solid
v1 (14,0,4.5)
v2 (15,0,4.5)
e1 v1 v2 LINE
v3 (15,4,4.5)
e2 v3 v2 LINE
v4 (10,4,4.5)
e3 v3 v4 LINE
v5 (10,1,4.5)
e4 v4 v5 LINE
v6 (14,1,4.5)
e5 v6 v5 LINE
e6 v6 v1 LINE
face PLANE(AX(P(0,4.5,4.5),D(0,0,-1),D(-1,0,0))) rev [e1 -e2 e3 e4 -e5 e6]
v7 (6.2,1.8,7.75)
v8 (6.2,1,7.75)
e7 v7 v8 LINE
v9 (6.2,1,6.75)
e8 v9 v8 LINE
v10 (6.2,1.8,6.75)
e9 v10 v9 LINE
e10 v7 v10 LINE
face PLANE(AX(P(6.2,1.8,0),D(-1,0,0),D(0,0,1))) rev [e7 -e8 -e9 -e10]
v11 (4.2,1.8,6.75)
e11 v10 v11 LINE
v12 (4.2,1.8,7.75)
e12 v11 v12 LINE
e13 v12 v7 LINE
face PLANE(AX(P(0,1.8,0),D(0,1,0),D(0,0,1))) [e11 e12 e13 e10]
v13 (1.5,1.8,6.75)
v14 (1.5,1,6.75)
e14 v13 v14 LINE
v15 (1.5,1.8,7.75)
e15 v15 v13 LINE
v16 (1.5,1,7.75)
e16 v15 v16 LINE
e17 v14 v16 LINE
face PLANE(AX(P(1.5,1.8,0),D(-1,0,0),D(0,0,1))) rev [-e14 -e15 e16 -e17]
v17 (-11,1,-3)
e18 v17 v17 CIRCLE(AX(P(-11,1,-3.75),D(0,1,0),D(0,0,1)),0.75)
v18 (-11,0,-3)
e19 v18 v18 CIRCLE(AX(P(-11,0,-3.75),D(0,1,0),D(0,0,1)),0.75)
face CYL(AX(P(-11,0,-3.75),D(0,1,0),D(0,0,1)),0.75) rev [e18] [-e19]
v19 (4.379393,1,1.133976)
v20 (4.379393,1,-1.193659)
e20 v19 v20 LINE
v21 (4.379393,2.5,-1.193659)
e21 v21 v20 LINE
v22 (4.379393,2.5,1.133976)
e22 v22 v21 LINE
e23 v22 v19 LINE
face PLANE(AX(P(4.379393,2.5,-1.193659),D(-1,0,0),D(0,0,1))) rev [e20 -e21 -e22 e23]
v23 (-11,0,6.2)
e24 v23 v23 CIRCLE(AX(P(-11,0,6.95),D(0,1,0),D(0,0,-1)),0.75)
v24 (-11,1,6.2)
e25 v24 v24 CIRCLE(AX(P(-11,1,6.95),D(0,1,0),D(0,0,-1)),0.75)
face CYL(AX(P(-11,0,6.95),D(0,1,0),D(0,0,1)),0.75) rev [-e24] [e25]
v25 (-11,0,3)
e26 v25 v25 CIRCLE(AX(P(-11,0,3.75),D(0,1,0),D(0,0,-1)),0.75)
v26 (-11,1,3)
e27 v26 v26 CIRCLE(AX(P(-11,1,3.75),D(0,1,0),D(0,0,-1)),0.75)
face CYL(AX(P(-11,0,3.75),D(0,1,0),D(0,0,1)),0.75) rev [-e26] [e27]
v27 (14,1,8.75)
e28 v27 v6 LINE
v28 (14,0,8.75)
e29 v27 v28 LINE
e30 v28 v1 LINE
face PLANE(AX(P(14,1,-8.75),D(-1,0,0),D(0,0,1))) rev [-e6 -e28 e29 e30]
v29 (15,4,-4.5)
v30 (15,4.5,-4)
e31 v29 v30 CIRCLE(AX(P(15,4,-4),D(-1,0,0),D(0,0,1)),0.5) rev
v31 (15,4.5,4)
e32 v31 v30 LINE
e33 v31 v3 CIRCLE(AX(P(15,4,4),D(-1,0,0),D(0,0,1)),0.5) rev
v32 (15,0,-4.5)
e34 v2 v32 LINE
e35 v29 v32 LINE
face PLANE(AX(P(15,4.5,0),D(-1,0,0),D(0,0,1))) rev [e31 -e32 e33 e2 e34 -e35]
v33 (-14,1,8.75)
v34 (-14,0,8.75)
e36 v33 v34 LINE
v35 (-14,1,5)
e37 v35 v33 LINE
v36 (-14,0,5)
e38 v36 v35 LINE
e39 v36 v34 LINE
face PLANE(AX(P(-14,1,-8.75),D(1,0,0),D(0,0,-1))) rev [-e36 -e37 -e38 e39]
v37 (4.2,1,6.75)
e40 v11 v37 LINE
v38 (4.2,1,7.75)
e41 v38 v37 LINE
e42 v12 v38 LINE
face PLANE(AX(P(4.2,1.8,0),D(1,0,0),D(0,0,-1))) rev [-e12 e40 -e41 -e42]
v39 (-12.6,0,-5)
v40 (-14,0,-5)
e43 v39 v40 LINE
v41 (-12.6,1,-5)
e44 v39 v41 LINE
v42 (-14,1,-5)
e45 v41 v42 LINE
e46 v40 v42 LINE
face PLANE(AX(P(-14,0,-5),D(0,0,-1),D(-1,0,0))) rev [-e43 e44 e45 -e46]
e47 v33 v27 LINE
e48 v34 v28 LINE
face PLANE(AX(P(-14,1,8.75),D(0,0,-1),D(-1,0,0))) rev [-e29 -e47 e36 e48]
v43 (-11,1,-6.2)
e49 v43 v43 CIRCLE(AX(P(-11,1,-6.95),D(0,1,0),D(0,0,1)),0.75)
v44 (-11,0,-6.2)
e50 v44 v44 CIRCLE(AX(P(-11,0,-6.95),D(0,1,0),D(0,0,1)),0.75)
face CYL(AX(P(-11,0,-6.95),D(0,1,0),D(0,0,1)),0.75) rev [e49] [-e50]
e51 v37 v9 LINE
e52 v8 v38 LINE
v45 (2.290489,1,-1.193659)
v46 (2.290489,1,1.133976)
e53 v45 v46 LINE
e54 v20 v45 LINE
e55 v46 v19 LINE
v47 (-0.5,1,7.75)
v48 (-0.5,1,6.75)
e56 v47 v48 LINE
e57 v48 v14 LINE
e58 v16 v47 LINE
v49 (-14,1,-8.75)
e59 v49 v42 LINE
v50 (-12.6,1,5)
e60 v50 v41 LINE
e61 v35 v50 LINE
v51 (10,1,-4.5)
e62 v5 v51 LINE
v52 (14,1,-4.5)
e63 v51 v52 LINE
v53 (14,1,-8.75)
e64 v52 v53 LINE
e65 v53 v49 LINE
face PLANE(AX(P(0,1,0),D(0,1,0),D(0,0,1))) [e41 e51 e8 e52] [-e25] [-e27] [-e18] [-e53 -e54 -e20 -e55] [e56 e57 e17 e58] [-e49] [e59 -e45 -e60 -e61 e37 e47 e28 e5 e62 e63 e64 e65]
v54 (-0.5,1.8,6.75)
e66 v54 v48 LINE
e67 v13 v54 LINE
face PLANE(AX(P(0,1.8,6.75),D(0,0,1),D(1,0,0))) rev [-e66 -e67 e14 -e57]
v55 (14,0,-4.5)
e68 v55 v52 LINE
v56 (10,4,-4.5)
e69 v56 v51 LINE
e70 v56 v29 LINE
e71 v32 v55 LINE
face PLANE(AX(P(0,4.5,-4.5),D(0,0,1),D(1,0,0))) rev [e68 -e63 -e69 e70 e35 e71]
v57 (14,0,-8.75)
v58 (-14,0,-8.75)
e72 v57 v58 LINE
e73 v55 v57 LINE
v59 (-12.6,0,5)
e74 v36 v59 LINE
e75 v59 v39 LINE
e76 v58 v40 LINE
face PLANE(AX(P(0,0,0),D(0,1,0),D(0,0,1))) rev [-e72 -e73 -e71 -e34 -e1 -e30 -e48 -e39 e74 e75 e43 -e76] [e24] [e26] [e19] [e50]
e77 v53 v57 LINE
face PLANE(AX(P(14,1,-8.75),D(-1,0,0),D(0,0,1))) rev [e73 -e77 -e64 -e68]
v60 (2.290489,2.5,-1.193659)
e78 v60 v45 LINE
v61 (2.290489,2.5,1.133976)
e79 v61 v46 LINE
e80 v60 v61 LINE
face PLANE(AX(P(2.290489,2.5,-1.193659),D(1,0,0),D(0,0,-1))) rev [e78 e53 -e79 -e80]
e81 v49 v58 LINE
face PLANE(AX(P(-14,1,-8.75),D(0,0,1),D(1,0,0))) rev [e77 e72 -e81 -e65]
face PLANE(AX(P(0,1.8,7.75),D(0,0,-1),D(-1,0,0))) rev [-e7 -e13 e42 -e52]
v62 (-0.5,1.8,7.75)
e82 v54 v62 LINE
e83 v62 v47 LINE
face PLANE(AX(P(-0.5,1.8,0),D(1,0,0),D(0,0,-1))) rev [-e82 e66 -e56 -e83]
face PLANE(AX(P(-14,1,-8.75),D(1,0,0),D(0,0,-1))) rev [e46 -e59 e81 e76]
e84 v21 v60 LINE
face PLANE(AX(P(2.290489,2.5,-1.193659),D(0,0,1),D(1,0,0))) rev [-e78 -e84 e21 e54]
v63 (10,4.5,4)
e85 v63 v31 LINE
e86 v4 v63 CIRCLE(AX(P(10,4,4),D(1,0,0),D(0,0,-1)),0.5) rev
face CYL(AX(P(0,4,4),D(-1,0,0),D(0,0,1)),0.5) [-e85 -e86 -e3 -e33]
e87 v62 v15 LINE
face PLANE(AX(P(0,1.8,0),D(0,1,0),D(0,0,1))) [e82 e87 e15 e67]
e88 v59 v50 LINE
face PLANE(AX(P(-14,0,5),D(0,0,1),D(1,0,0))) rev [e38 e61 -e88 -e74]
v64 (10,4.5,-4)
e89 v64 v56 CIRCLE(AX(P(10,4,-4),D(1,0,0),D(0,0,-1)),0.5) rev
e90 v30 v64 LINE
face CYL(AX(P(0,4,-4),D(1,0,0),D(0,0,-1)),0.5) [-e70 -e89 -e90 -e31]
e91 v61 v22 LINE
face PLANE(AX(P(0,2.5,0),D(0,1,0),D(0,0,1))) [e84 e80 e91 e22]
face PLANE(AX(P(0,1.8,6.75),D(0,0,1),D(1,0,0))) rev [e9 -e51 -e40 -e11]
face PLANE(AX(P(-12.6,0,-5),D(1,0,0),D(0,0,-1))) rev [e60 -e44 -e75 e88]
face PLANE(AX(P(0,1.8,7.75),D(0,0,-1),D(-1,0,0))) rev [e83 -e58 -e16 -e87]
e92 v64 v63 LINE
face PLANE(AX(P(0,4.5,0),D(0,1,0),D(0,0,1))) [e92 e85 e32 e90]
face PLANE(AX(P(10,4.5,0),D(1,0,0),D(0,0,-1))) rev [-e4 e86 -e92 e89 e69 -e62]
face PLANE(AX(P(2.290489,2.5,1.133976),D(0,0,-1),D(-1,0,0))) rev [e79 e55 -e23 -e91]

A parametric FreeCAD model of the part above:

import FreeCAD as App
import Part
import Sketcher
from FreeCAD import Vector


def edges_at(feature, points):
    """Names of the edges that pass closest to the given points."""
    edges = feature.Shape.Edges
    near = lambda p: min(range(len(edges)), key=lambda i: edges[i].distToShape(Part.Vertex(*p))[0])
    return sorted({f"Edge{near(p) + 1}" for p in points})


def add_polygon(sketch, points):
    """Adds a closed chain of lines whose ends are joined by coincident constraints."""
    first, n = sketch.GeometryCount, len(points)
    for a, b in zip(points, points[1:] + points[:1]):
        sketch.addGeometry(Part.LineSegment(App.Vector(*a, 0), App.Vector(*b, 0)), False)
    for i in range(n):
        sketch.addConstraint(Sketcher.Constraint("Coincident", first + i, 2, first + (i + 1) % n, 1))

doc = App.newDocument("Part")
body = doc.addObject("PartDesign::Body", "Body")

# Sketch on XZ plane
sketch1 = body.newObject("Sketcher::SketchObject", "Sketch")
sketch1.AttachmentSupport = (doc.getObject("XZ_Plane"), [""])
sketch1.MapMode = "FlatFace"
add_polygon(sketch1, [(-14, -9), (-14, 9), (14, 9), (14, -9)])  # lines 0-3
sketch1.addConstraint([
    Sketcher.Constraint("Vertical", 0),
    Sketcher.Constraint("Horizontal", 1),
    Sketcher.Constraint("Vertical", 2),
    Sketcher.Constraint("Horizontal", 3),
    Sketcher.Constraint("Symmetric", 0, 2, 2, 2, -1, 1),
    Sketcher.Constraint("DistanceX", 1, 1, 1, 2, 28.0),
    Sketcher.Constraint("DistanceY", 0, 1, 0, 2, 17.5),
])
pad1 = body.newObject("PartDesign::Pad", "Pad")
pad1.Profile = sketch1
pad1.Length = 1
pad1.Reversed = True

# Sketch on XZ plane
sketch2 = body.newObject("Sketcher::SketchObject", "Sketch001")
sketch2.AttachmentSupport = (doc.getObject("XZ_Plane"), [""])
sketch2.MapMode = "FlatFace"
add_polygon(sketch2, [(10, -4), (10, 4), (15, 4), (15, -4)])  # lines 0-3
sketch2.addConstraint([
    Sketcher.Constraint("Vertical", 0),
    Sketcher.Constraint("Horizontal", 1),
    Sketcher.Constraint("Vertical", 2),
    Sketcher.Constraint("Horizontal", 3),
    Sketcher.Constraint("DistanceX", 1, 1, 1, 2, 5.0),
    Sketcher.Constraint("DistanceY", 0, 1, 0, 2, 9.0),
    Sketcher.Constraint("DistanceX", -1, 1, 0, 2, 10.0),
    Sketcher.Constraint("DistanceY", -1, 1, 0, 2, 4.5),
])
pad2 = body.newObject("PartDesign::Pad", "Pad001")
pad2.Profile = sketch2
pad2.Length = 4.5
pad2.Reversed = True
doc.recompute()

fillet = body.newObject("PartDesign::Fillet", "Fillet")
fillet.Base = (pad2, edges_at(pad2, [(12.5, 4.5, 4.5), (12.5, 4.5, -4.5)]))
fillet.Radius = 0.5

# Sketch on XZ plane
sketch3 = body.newObject("Sketcher::SketchObject", "Sketch002")
sketch3.AttachmentSupport = (doc.getObject("XZ_Plane"), [""])
sketch3.MapMode = "FlatFace"
sketch3.AttachmentOffset = App.Placement(Vector(0, 0, -1), App.Rotation())
add_polygon(sketch3, [(2.3, -1.2), (2.3, 1.1), (4.4, 1.1), (4.4, -1.2)])  # lines 0-3
sketch3.addConstraint([
    Sketcher.Constraint("Vertical", 0),
    Sketcher.Constraint("Horizontal", 1),
    Sketcher.Constraint("Vertical", 2),
    Sketcher.Constraint("Horizontal", 3),
    Sketcher.Constraint("DistanceX", 1, 1, 1, 2, 2.088904),
    Sketcher.Constraint("DistanceY", 0, 1, 0, 2, 2.327636),
    Sketcher.Constraint("DistanceX", -1, 1, 0, 2, 2.290489),
    Sketcher.Constraint("DistanceY", 2, 2, -1, 1, 1.193659),
])
pad3 = body.newObject("PartDesign::Pad", "Pad002")
pad3.Profile = sketch3
pad3.Length = 1.5
pad3.Reversed = True

# Sketch on XZ plane
sketch4 = body.newObject("Sketcher::SketchObject", "Sketch003")
sketch4.AttachmentSupport = (doc.getObject("XZ_Plane"), [""])
sketch4.MapMode = "FlatFace"
sketch4.AttachmentOffset = App.Placement(Vector(0, 0, -1), App.Rotation())
add_polygon(sketch4, [(-14, -5), (-14, 5), (-12.6, 5), (-12.6, -5)])  # lines 0-3
sketch4.addConstraint([
    Sketcher.Constraint("Vertical", 0),
    Sketcher.Constraint("Horizontal", 1),
    Sketcher.Constraint("Vertical", 2),
    Sketcher.Constraint("Horizontal", 3),
    Sketcher.Constraint("DistanceY", 0, 1, 0, 2, 10.0),
    Sketcher.Constraint("DistanceX", 1, 1, 1, 2, 1.4),
    Sketcher.Constraint("DistanceX", 0, 2, -1, 1, 14.0),
    Sketcher.Constraint("DistanceY", -1, 1, 0, 2, 5.0),
])
pocket1 = body.newObject("PartDesign::Pocket", "Pocket")
pocket1.Profile = sketch4
pocket1.Type = "ThroughAll"
pocket1.Reversed = True

# Sketch on XZ plane
sketch5 = body.newObject("Sketcher::SketchObject", "Sketch004")
sketch5.AttachmentSupport = (doc.getObject("XZ_Plane"), [""])
sketch5.MapMode = "FlatFace"
sketch5.AttachmentOffset = App.Placement(Vector(0, 0, -1), App.Rotation())
sketch5.addGeometry([
    Part.Circle(Vector(-11, -7, 0), Vector(0, 0, 1), 0.8),
    Part.Circle(Vector(-11, -3.8, 0), Vector(0, 0, 1), 0.8),
    Part.Circle(Vector(-11, 3.8, 0), Vector(0, 0, 1), 0.8),
    Part.Circle(Vector(-11, 7, 0), Vector(0, 0, 1), 0.8),
], False)
sketch5.addConstraint([
    Sketcher.Constraint("Equal", 0, 1),
    Sketcher.Constraint("Equal", 1, 2),
    Sketcher.Constraint("Equal", 2, 3),
    Sketcher.Constraint("Symmetric", 1, 3, 2, 3, -1),
    Sketcher.Constraint("Symmetric", 0, 3, 3, 3, -1),
    Sketcher.Constraint("Vertical", 0, 3, 1, 3),
    Sketcher.Constraint("Diameter", 0, 1.5),
    Sketcher.Constraint("DistanceX", 0, 3, -1, 1, 11.0),
    Sketcher.Constraint("DistanceY", 0, 3, 1, 3, 3.2),
    Sketcher.Constraint("DistanceY", 1, 3, 2, 3, 7.5),
])
pocket2 = body.newObject("PartDesign::Pocket", "Pocket001")
pocket2.Profile = sketch5
pocket2.Type = "ThroughAll"
pocket2.Reversed = True

# Sketch on XZ plane
sketch6 = body.newObject("Sketcher::SketchObject", "Sketch005")
sketch6.AttachmentSupport = (doc.getObject("XZ_Plane"), [""])
sketch6.MapMode = "FlatFace"
add_polygon(sketch6, [(4.2, 6.8), (4.2, 7.8), (6.2, 7.8), (6.2, 6.8)])  # lines 0-3
sketch6.addConstraint([
    Sketcher.Constraint("Vertical", 0),
    Sketcher.Constraint("Horizontal", 1),
    Sketcher.Constraint("Vertical", 2),
    Sketcher.Constraint("Horizontal", 3),
    Sketcher.Constraint("DistanceX", 1, 1, 1, 2, 2.0),
    Sketcher.Constraint("DistanceY", 0, 1, 0, 2, 1.0),
    Sketcher.Constraint("DistanceX", -1, 1, 0, 2, 4.2),
    Sketcher.Constraint("DistanceY", -1, 1, 0, 2, 7.75),
])
pad4 = body.newObject("PartDesign::Pad", "Pad003")
pad4.Profile = sketch6
pad4.Length = 1.8
pad4.Reversed = True
doc.recompute()

linearpattern = body.newObject("PartDesign::LinearPattern", "LinearPattern")
linearpattern.Originals = [pad4]
linearpattern.Direction = (doc.getObject("X_Axis"), [""])
linearpattern.Mode = "offset"
linearpattern.Offset = 4.7
linearpattern.Occurrences = 2
linearpattern.Reversed = True
body.Tip = linearpattern

doc.recompute()
